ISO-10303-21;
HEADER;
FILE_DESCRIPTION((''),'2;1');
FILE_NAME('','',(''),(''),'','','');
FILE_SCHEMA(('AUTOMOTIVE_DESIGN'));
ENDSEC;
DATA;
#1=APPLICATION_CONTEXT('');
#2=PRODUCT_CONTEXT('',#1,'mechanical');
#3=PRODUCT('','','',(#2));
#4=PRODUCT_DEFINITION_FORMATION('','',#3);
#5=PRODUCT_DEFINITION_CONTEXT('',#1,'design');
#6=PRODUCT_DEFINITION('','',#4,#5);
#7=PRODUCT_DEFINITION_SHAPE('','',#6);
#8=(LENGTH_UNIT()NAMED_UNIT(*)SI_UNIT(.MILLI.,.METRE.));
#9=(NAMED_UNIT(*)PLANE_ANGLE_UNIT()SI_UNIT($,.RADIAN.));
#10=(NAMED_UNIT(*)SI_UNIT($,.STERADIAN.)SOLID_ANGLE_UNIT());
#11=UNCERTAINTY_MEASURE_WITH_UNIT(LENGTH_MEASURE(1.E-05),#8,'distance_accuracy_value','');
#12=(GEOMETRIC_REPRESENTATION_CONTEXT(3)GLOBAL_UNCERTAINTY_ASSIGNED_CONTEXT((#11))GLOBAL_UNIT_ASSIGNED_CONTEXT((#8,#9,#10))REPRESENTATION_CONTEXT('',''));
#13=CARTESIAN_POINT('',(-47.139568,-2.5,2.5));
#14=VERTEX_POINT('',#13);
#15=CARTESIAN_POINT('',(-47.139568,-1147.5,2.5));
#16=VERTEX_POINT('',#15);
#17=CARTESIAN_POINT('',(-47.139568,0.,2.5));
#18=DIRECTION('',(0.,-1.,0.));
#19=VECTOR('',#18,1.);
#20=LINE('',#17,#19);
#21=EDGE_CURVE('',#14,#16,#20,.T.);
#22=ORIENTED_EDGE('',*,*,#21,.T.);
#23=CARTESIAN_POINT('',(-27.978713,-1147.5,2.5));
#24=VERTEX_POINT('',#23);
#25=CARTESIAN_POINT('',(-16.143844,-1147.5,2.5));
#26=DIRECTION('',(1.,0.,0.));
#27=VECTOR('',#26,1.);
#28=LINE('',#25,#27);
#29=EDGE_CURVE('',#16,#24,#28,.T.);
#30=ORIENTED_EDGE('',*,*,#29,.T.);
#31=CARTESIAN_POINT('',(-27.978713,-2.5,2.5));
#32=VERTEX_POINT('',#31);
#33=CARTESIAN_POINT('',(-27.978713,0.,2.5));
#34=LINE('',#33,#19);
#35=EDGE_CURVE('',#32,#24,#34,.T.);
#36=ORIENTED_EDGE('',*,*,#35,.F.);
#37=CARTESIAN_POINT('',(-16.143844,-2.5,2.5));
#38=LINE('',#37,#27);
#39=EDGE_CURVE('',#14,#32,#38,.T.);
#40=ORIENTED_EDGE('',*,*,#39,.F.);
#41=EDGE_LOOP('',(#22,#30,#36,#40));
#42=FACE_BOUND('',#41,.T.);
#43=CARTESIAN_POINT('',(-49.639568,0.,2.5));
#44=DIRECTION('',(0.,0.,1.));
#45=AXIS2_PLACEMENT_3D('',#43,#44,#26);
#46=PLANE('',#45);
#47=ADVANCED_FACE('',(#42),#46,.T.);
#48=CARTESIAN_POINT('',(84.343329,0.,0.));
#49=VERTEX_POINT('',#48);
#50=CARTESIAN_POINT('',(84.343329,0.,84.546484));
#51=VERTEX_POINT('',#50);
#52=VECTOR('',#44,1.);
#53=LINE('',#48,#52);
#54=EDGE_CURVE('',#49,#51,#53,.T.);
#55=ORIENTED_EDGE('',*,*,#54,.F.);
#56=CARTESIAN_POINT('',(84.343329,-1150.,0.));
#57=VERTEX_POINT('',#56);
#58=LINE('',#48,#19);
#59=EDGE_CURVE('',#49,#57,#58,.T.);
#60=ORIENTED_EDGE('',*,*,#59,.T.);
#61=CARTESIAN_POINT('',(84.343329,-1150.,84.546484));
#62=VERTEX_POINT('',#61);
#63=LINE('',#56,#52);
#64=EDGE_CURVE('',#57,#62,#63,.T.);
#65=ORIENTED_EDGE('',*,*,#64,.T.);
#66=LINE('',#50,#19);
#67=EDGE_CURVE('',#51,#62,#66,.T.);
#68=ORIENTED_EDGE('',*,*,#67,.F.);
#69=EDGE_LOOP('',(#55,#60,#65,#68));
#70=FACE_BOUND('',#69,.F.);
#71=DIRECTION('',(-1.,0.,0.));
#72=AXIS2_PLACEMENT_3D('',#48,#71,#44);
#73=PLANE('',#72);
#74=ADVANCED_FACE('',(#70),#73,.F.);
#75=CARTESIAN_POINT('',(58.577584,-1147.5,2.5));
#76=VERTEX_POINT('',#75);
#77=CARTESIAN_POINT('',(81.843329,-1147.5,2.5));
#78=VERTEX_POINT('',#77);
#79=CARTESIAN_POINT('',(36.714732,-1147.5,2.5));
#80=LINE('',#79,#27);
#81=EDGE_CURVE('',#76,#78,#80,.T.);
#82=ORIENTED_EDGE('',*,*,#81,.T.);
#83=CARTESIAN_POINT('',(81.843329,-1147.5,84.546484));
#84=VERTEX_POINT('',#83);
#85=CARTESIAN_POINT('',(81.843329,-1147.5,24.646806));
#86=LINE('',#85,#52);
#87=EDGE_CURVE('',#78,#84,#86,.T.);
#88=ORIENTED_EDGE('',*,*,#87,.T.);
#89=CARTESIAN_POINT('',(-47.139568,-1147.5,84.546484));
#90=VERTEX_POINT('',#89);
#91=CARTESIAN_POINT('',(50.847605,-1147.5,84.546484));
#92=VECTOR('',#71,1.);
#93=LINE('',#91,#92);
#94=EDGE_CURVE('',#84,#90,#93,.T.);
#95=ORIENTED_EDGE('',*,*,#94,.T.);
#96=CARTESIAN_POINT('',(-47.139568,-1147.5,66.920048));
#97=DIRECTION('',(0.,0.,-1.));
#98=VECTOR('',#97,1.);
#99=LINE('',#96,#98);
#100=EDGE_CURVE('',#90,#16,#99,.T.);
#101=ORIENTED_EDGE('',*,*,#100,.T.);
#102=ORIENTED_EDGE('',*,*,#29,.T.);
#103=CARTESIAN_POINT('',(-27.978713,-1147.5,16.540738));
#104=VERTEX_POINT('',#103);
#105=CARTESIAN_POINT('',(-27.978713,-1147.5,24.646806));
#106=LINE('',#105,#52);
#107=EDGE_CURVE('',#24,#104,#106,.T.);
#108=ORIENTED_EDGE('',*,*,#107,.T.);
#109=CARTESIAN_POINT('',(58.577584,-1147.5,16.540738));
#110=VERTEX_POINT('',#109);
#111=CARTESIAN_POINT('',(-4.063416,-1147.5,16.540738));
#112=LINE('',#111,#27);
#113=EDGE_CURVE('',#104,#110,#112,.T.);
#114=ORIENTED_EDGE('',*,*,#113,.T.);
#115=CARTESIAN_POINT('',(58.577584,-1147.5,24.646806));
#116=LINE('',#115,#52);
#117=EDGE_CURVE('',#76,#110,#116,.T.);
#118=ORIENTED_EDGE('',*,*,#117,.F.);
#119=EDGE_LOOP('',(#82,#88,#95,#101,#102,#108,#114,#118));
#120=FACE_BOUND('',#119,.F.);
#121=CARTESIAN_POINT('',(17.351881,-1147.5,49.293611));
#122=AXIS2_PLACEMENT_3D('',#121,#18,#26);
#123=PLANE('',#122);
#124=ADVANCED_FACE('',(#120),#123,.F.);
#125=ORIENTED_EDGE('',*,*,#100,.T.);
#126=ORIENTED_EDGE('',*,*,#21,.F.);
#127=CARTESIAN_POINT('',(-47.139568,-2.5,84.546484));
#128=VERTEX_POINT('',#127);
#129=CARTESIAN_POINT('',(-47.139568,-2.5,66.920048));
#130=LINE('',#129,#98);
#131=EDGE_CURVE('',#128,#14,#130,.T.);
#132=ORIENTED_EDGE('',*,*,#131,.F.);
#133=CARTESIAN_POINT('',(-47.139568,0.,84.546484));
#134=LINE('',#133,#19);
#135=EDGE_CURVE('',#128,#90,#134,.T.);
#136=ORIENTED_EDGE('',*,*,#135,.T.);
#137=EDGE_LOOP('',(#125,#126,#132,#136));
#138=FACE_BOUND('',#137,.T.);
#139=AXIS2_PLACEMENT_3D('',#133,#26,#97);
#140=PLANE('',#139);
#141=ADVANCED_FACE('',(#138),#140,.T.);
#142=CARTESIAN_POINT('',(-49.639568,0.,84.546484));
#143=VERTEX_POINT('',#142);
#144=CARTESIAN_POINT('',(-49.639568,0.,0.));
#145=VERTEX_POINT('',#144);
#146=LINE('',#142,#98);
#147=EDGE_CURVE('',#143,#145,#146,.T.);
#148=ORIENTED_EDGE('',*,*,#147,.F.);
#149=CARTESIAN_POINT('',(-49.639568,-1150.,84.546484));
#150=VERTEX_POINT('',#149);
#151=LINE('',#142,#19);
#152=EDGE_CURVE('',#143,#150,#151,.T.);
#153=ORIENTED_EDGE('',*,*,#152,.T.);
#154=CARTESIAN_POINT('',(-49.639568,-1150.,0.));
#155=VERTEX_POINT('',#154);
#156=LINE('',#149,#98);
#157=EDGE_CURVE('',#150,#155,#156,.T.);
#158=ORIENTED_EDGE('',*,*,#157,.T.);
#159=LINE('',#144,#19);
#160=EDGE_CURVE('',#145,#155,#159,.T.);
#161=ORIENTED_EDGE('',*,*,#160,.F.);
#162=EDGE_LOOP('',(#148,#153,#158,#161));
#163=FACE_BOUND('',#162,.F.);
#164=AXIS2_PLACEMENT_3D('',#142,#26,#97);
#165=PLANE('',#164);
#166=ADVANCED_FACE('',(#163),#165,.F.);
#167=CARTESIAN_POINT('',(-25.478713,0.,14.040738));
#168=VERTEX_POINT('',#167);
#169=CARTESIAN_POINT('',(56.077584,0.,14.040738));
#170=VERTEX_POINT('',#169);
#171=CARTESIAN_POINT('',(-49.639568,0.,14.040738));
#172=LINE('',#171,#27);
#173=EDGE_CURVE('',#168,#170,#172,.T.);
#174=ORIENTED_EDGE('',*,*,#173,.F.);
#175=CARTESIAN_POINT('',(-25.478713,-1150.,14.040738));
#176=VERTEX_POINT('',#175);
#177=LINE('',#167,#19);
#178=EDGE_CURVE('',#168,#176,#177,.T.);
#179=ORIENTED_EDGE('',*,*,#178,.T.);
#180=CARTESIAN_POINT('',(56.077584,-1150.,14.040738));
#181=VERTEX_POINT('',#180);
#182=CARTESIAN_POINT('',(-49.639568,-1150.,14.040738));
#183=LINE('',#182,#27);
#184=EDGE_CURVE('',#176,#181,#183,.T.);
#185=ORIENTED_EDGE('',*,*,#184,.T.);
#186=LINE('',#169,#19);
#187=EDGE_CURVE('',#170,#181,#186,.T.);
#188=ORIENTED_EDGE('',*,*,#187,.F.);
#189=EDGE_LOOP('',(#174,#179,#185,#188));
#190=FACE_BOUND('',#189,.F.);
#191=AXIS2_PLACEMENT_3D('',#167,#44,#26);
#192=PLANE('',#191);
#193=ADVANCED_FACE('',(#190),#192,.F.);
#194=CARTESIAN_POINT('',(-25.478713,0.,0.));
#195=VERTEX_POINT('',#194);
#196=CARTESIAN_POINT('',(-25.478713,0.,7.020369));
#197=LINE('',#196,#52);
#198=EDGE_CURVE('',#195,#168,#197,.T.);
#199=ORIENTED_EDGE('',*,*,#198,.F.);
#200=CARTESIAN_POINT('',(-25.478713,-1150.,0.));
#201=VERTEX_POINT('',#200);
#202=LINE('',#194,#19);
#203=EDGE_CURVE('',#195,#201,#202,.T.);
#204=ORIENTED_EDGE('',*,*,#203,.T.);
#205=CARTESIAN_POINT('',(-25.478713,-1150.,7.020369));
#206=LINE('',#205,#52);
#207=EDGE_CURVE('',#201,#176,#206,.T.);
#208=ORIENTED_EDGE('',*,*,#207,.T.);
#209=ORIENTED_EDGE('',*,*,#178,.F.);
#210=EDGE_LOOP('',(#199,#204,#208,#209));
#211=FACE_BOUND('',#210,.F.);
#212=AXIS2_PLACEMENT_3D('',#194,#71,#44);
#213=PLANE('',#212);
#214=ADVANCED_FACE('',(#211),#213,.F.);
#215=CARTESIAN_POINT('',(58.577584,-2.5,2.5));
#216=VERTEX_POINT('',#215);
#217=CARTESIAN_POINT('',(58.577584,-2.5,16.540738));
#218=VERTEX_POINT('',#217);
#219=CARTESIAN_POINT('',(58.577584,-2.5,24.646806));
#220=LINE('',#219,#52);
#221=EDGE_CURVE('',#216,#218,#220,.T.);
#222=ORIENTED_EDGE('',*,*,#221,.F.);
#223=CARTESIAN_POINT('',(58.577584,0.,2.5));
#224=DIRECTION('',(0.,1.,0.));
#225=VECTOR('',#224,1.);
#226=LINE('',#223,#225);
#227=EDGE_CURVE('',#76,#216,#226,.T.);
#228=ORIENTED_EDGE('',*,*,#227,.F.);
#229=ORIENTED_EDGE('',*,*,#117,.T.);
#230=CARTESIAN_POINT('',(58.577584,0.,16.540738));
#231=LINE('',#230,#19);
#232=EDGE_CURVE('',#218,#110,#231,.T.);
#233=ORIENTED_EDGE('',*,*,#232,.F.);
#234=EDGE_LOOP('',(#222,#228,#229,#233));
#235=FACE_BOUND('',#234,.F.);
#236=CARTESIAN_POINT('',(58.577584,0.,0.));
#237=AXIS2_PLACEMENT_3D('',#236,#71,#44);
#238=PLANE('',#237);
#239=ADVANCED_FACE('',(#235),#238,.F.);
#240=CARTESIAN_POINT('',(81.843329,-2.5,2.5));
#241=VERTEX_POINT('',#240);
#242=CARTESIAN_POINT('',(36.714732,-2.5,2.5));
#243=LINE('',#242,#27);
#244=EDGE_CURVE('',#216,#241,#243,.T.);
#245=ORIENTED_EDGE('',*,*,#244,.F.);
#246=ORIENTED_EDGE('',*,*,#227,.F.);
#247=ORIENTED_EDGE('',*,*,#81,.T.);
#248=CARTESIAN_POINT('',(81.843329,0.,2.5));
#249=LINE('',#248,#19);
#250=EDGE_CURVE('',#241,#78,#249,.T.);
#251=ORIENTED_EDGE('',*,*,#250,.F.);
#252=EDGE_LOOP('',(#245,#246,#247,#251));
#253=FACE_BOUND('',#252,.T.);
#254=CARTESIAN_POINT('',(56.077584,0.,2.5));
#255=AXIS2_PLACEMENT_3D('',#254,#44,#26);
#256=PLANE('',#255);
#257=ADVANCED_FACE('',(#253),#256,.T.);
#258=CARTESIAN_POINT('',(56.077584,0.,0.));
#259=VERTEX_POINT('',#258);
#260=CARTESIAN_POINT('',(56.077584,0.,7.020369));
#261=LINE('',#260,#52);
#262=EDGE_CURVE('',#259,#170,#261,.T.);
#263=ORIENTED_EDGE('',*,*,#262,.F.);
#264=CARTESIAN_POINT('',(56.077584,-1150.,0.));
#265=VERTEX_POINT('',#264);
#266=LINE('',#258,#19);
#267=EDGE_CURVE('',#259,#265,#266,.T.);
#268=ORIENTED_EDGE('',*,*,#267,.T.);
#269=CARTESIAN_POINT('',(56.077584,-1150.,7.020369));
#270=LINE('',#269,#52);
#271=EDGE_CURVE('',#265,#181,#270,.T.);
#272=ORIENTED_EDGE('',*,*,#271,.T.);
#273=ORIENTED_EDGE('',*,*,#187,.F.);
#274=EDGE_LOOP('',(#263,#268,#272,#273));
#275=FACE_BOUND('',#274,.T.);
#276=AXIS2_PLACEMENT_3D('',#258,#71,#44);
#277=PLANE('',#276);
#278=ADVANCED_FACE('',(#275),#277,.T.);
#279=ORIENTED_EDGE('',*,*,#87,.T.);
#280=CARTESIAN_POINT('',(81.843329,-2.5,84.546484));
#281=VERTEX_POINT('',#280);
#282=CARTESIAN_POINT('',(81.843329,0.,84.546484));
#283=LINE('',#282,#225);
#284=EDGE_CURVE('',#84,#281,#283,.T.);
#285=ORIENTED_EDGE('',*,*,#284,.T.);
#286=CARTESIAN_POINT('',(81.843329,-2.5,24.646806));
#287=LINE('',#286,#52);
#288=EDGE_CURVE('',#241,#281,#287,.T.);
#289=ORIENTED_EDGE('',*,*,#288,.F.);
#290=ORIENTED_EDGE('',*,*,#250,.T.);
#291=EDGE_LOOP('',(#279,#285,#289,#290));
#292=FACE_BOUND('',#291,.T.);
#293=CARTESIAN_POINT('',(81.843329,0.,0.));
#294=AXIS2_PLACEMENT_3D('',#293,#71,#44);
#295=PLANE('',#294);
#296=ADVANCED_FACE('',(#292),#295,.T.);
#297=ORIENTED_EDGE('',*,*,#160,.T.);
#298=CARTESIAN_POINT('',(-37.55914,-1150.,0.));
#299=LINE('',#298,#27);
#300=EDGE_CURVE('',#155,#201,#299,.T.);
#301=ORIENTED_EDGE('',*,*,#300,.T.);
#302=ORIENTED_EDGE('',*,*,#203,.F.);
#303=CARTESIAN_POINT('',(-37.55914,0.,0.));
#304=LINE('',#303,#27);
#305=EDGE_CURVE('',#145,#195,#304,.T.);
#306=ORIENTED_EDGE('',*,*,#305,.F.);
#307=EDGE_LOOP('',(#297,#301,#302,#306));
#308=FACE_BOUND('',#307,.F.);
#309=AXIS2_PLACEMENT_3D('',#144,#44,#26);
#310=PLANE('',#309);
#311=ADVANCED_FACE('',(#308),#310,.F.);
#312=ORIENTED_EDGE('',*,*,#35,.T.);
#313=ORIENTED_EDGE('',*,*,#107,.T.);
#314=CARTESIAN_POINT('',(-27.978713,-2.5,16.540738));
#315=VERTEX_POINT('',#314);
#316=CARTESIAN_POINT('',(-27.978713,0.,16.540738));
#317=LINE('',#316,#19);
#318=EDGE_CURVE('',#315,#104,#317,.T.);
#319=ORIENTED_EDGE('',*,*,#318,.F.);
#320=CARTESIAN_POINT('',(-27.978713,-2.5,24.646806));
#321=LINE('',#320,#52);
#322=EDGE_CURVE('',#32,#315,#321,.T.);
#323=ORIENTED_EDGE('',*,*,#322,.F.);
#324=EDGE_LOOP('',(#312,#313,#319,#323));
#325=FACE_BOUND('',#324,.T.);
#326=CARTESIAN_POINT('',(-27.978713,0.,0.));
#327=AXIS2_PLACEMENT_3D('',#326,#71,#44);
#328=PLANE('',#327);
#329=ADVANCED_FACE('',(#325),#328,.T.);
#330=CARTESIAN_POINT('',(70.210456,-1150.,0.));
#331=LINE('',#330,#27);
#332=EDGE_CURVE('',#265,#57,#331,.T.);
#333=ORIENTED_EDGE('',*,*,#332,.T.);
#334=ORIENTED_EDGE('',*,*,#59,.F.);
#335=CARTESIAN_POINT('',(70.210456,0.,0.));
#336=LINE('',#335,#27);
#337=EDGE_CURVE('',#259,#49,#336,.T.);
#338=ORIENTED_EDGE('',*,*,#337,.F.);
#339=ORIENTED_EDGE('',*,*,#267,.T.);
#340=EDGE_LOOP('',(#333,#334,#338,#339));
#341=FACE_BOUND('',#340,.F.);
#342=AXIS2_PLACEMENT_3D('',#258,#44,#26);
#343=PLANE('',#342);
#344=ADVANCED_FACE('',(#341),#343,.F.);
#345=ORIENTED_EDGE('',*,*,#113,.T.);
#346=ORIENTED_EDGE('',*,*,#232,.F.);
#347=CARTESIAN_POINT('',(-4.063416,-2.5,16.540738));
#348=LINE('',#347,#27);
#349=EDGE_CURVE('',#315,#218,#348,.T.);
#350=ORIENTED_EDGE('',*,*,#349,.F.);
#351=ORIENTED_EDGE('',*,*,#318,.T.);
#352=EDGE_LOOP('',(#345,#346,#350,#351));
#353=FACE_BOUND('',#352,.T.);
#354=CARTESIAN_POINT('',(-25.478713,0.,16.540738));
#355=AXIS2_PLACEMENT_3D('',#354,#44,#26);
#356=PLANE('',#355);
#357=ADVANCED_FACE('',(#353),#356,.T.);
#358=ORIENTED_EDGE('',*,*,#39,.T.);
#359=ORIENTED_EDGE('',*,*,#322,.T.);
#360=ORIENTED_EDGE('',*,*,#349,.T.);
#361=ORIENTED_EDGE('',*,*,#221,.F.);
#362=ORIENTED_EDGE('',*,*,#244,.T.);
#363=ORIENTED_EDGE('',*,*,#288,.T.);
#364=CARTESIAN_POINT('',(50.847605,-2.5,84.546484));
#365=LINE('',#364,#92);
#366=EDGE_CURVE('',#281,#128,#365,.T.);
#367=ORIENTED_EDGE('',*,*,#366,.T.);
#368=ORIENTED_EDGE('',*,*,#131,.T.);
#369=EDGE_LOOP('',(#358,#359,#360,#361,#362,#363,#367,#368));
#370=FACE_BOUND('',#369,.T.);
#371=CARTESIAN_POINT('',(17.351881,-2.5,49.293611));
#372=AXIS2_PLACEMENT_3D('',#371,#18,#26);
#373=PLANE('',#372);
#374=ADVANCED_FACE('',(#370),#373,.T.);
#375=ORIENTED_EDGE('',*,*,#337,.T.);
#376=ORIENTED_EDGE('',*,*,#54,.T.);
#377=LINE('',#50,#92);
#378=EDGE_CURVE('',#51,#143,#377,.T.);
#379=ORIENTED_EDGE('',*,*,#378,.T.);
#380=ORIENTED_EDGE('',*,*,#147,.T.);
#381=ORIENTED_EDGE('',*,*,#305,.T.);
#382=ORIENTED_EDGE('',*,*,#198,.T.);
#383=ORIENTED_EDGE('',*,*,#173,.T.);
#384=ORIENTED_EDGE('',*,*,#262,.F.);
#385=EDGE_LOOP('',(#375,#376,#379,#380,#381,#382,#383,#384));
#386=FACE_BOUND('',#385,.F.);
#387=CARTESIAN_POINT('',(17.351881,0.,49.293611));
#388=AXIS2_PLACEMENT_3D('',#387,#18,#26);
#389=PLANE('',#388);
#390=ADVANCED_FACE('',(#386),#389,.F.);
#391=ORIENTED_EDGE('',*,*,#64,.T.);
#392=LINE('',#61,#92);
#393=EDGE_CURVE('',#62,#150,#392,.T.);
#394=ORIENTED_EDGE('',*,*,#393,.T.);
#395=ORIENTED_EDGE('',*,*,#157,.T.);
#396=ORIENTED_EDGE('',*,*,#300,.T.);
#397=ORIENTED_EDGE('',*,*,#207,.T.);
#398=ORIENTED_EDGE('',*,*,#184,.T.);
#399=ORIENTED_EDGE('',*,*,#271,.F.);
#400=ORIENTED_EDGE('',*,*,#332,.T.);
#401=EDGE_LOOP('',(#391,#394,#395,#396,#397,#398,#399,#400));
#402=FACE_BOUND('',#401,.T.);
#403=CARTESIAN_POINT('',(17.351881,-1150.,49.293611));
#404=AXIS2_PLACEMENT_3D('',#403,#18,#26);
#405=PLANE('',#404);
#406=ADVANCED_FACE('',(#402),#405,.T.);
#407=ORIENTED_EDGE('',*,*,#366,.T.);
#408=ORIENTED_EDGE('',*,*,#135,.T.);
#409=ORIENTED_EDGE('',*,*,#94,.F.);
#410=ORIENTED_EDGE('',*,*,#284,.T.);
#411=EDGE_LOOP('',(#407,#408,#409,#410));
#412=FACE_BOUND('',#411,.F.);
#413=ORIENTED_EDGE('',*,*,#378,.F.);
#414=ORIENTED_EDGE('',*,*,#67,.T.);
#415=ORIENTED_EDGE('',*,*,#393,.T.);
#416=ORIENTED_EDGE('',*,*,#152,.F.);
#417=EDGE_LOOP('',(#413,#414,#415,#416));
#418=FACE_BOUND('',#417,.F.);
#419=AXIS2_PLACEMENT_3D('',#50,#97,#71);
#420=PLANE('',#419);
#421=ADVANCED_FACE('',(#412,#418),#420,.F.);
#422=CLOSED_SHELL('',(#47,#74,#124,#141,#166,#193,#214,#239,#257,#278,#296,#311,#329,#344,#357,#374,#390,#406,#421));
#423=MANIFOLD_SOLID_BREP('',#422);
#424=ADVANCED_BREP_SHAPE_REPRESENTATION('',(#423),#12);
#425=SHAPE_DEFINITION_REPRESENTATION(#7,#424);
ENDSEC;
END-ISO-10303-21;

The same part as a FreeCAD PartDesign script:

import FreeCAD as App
import Part
import Sketcher

V = App.Vector


def faces_at(feature, points):
    """Names of the faces that lie closest to the given points."""
    faces = feature.Shape.Faces
    near = lambda p: min(range(len(faces)), key=lambda i: faces[i].distToShape(Part.Vertex(*p))[0])
    return sorted({f"Face{near(p) + 1}" for p in points})


def add_polygon(sketch, points):
    """Adds a closed chain of lines whose ends are joined by coincident constraints."""
    first, n = sketch.GeometryCount, len(points)
    for a, b in zip(points, points[1:] + points[:1]):
        sketch.addGeometry(Part.LineSegment(App.Vector(*a, 0), App.Vector(*b, 0)), False)
    for i in range(n):
        sketch.addConstraint(Sketcher.Constraint("Coincident", first + i, 2, first + (i + 1) % n, 1))

doc = App.newDocument("Part")
body = doc.addObject("PartDesign::Body", "Body")

sketch1 = doc.addObject("Sketcher::SketchObject", "Sketch")
body.addObject(sketch1)
sketch1.AttachmentSupport = (doc.XZ_Plane, [""])
sketch1.MapMode = "FlatFace"
add_polygon(sketch1, [(-25, 14), (56, 14), (56, 0), (84, 0), (84, 85), (-50, 85), (-50, 0), (-25, 0)])
sketch1.addConstraint([
    Sketcher.Constraint("Horizontal", 0),
    Sketcher.Constraint("Vertical", 1),
    Sketcher.Constraint("Horizontal", 2),
    Sketcher.Constraint("Vertical", 3),
    Sketcher.Constraint("Horizontal", 4),
    Sketcher.Constraint("Vertical", 5),
    Sketcher.Constraint("Horizontal", 6),
    Sketcher.Constraint("Vertical", 7),
    Sketcher.Constraint("PointOnObject", 1, 2, -1),
    Sketcher.Constraint("PointOnObject", 5, 2, -1),
    Sketcher.Constraint("DistanceY", 1, 2, 1, 1, 14.040738),
    Sketcher.Constraint("DistanceX", 0, 1, 0, 2, 81.556297),
    Sketcher.Constraint("DistanceX", 2, 1, 2, 2, 28.265745),
    Sketcher.Constraint("DistanceX", 4, 2, 4, 1, 133.982897),
    Sketcher.Constraint("DistanceY", 3, 1, 3, 2, 84.546484),
    Sketcher.Constraint("DistanceX", -1, 1, 2, 2, 84.343329),
])
pad1 = doc.addObject("PartDesign::Pad", "Pad")
body.addObject(pad1)
pad1.Profile = sketch1
pad1.Length = 1150
doc.recompute()

thickness = doc.addObject("PartDesign::Thickness", "Thickness")
body.addObject(thickness)
thickness.Base = (pad1, faces_at(pad1, [(17.352, -575, 84.546)]))
thickness.Value = 2.5
thickness.Reversed = True
thickness.Join = "Intersection"

doc.recompute()
